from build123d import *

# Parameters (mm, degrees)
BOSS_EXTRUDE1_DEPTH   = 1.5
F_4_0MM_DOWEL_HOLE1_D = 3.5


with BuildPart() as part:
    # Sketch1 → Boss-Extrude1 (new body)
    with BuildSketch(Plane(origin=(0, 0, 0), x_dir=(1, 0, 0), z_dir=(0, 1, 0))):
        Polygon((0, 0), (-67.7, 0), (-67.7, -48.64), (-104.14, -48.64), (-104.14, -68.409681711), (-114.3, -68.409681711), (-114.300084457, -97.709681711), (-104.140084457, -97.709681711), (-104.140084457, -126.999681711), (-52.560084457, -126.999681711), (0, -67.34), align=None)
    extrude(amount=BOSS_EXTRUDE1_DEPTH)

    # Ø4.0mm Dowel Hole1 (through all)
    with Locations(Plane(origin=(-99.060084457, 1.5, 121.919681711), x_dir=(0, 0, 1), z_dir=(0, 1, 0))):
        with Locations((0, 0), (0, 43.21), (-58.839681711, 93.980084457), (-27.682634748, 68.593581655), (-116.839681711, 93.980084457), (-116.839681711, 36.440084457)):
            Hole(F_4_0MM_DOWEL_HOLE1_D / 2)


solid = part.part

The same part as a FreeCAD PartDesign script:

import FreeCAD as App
import Part
import Sketcher
from FreeCAD import Vector
Q = App.Units.Quantity

doc = App.newDocument("Part")
body = doc.addObject("PartDesign::Body", "Body")

# Sketch on XZ plane
sketch1 = body.newObject("Sketcher::SketchObject", "Sketch")
sketch1.AttachmentSupport = (doc.getObject("XZ_Plane"), [""])
sketch1.MapMode = "FlatFace"
sketch1.addGeometry([
    Part.LineSegment(Vector(0, 0, 0), Vector(-68, 0, 0)),  # 0
    Part.LineSegment(Vector(-68, 0, 0), Vector(-68, 49, 0)),  # 1
    Part.LineSegment(Vector(-68, 49, 0), Vector(-104, 49, 0)),  # 2
    Part.LineSegment(Vector(-104, 49, 0), Vector(-104, 68, 0)),  # 3
    Part.LineSegment(Vector(-104, 68, 0), Vector(-114, 68, 0)),  # 4
    Part.LineSegment(Vector(-114, 68, 0), Vector(-114, 98, 0)),  # 5
    Part.LineSegment(Vector(-114, 98, 0), Vector(-104, 98, 0)),  # 6
    Part.LineSegment(Vector(-104, 98, 0), Vector(-104, 127, 0)),  # 7
    Part.LineSegment(Vector(-104, 127, 0), Vector(-53, 127, 0)),  # 8
    Part.LineSegment(Vector(-53, 127, 0), Vector(0, 67, 0)),  # 9
    Part.LineSegment(Vector(0, 67, 0), Vector(0, 0, 0)),  # 10
], False)
sketch1.addConstraint([
    Sketcher.Constraint("Coincident", 0, 2, 1, 1),
    Sketcher.Constraint("Coincident", 1, 2, 2, 1),
    Sketcher.Constraint("Coincident", 2, 2, 3, 1),
    Sketcher.Constraint("Coincident", 3, 2, 4, 1),
    Sketcher.Constraint("Coincident", 4, 2, 5, 1),
    Sketcher.Constraint("Coincident", 5, 2, 6, 1),
    Sketcher.Constraint("Coincident", 6, 2, 7, 1),
    Sketcher.Constraint("Coincident", 7, 2, 8, 1),
    Sketcher.Constraint("Coincident", 8, 2, 9, 1),
    Sketcher.Constraint("Coincident", 9, 2, 10, 1),
    Sketcher.Constraint("Coincident", 10, 2, 0, 1),
    Sketcher.Constraint("Horizontal", 0),
    Sketcher.Constraint("Vertical", 1),
    Sketcher.Constraint("Horizontal", 2),
    Sketcher.Constraint("Vertical", 3),
    Sketcher.Constraint("Horizontal", 4),
    Sketcher.Constraint("Horizontal", 6),
    Sketcher.Constraint("Vertical", 7),
    Sketcher.Constraint("Horizontal", 8),
    Sketcher.Constraint("Vertical", 10),
    Sketcher.Constraint("Coincident", 10, 2, -1, 1),
    Sketcher.Constraint("Equal", 4, 6),
    Sketcher.Constraint("DistanceX", 0, 2, 0, 1, Q("67.7 mm")),
    Sketcher.Constraint("Distance", 5, Q("29.3 mm")),
    Sketcher.Constraint("DistanceX", 2, 2, 2, 1, Q("36.44 mm")),
    Sketcher.Constraint("DistanceX", 4, 2, 4, 1, Q("10.16 mm")),
    Sketcher.Constraint("DistanceX", 8, 1, 8, 2, Q("51.58 mm")),
    Sketcher.Constraint("DistanceY", 1, 1, 1, 2, Q("48.64 mm")),
    Sketcher.Constraint("DistanceY", 7, 1, 7, 2, Q("29.29 mm")),
    Sketcher.Constraint("DistanceY", 10, 2, 10, 1, Q("67.34 mm")),
    Sketcher.Constraint("Angle", 9, Q("-48.62 deg")),
    Sketcher.Constraint("Distance", 9, Q("79.51 mm")),
])
pad1 = body.newObject("PartDesign::Pad", "Pad")
pad1.Profile = sketch1
pad1.Length = 1.5
pad1.Reversed = True

# Sketch on XZ plane
sketch2 = body.newObject("Sketcher::SketchObject", "Sketch001")
sketch2.AttachmentSupport = (doc.getObject("XZ_Plane"), [""])
sketch2.MapMode = "FlatFace"
sketch2.AttachmentOffset = App.Placement(Vector(0, 0, -1.5), App.Rotation())
sketch2.addGeometry([
    Part.Circle(Vector(-99.1, 121.9, 0), Vector(0, 0, 1), 1.8),  # 0
    Part.Circle(Vector(-55.9, 121.9, 0), Vector(0, 0, 1), 1.8),  # 1
    Part.Circle(Vector(-5.1, 63.1, 0), Vector(0, 0, 1), 1.8),  # 2
    Part.Circle(Vector(-30.5, 94.2, 0), Vector(0, 0, 1), 1.8),  # 3
    Part.Circle(Vector(-5.1, 5.1, 0), Vector(0, 0, 1), 1.8),  # 4
    Part.Circle(Vector(-62.6, 5.1, 0), Vector(0, 0, 1), 1.8),  # 5
], False)
sketch2.addConstraint([
    Sketcher.Constraint("Equal", 0, 1),
    Sketcher.Constraint("Equal", 1, 2),
    Sketcher.Constraint("Equal", 2, 3),
    Sketcher.Constraint("Equal", 3, 4),
    Sketcher.Constraint("Equal", 4, 5),
    Sketcher.Constraint("Horizontal", 0, 3, 1, 3),
    Sketcher.Constraint("Horizontal", 4, 3, 5, 3),
    Sketcher.Constraint("Vertical", 2, 3, 4, 3),
    Sketcher.Constraint("Diameter", 0, Q("3.5 mm")),
    Sketcher.Constraint("DistanceY", 4, 3, 2, 3, Q("58 mm")),
    Sketcher.Constraint("DistanceX", 2, 3, -1, 1, Q("5.08 mm")),
    Sketcher.Constraint("DistanceY", -1, 1, 2, 3, Q("63.08 mm")),
    Sketcher.Constraint("DistanceX", 5, 3, -1, 1, Q("62.62 mm")),
    Sketcher.Constraint("DistanceX", 0, 3, 1, 3, Q("43.21 mm")),
    Sketcher.Constraint("DistanceY", -1, 1, 0, 3, Q("121.919682 mm")),
    Sketcher.Constraint("DistanceX", 1, 3, 3, 3, Q("25.383582 mm")),
    Sketcher.Constraint("DistanceX", 0, 3, -1, 1, Q("99.060084 mm")),
    Sketcher.Constraint("DistanceY", -1, 1, 3, 3, Q("94.237047 mm")),
])
doc.recompute()
hole = body.newObject("PartDesign::Hole", "Hole")
hole.Profile = sketch2
hole.ThreadType = "None"
hole.Diameter = 3.5
hole.DepthType = "ThroughAll"
hole.Reversed = True

doc.recompute()
